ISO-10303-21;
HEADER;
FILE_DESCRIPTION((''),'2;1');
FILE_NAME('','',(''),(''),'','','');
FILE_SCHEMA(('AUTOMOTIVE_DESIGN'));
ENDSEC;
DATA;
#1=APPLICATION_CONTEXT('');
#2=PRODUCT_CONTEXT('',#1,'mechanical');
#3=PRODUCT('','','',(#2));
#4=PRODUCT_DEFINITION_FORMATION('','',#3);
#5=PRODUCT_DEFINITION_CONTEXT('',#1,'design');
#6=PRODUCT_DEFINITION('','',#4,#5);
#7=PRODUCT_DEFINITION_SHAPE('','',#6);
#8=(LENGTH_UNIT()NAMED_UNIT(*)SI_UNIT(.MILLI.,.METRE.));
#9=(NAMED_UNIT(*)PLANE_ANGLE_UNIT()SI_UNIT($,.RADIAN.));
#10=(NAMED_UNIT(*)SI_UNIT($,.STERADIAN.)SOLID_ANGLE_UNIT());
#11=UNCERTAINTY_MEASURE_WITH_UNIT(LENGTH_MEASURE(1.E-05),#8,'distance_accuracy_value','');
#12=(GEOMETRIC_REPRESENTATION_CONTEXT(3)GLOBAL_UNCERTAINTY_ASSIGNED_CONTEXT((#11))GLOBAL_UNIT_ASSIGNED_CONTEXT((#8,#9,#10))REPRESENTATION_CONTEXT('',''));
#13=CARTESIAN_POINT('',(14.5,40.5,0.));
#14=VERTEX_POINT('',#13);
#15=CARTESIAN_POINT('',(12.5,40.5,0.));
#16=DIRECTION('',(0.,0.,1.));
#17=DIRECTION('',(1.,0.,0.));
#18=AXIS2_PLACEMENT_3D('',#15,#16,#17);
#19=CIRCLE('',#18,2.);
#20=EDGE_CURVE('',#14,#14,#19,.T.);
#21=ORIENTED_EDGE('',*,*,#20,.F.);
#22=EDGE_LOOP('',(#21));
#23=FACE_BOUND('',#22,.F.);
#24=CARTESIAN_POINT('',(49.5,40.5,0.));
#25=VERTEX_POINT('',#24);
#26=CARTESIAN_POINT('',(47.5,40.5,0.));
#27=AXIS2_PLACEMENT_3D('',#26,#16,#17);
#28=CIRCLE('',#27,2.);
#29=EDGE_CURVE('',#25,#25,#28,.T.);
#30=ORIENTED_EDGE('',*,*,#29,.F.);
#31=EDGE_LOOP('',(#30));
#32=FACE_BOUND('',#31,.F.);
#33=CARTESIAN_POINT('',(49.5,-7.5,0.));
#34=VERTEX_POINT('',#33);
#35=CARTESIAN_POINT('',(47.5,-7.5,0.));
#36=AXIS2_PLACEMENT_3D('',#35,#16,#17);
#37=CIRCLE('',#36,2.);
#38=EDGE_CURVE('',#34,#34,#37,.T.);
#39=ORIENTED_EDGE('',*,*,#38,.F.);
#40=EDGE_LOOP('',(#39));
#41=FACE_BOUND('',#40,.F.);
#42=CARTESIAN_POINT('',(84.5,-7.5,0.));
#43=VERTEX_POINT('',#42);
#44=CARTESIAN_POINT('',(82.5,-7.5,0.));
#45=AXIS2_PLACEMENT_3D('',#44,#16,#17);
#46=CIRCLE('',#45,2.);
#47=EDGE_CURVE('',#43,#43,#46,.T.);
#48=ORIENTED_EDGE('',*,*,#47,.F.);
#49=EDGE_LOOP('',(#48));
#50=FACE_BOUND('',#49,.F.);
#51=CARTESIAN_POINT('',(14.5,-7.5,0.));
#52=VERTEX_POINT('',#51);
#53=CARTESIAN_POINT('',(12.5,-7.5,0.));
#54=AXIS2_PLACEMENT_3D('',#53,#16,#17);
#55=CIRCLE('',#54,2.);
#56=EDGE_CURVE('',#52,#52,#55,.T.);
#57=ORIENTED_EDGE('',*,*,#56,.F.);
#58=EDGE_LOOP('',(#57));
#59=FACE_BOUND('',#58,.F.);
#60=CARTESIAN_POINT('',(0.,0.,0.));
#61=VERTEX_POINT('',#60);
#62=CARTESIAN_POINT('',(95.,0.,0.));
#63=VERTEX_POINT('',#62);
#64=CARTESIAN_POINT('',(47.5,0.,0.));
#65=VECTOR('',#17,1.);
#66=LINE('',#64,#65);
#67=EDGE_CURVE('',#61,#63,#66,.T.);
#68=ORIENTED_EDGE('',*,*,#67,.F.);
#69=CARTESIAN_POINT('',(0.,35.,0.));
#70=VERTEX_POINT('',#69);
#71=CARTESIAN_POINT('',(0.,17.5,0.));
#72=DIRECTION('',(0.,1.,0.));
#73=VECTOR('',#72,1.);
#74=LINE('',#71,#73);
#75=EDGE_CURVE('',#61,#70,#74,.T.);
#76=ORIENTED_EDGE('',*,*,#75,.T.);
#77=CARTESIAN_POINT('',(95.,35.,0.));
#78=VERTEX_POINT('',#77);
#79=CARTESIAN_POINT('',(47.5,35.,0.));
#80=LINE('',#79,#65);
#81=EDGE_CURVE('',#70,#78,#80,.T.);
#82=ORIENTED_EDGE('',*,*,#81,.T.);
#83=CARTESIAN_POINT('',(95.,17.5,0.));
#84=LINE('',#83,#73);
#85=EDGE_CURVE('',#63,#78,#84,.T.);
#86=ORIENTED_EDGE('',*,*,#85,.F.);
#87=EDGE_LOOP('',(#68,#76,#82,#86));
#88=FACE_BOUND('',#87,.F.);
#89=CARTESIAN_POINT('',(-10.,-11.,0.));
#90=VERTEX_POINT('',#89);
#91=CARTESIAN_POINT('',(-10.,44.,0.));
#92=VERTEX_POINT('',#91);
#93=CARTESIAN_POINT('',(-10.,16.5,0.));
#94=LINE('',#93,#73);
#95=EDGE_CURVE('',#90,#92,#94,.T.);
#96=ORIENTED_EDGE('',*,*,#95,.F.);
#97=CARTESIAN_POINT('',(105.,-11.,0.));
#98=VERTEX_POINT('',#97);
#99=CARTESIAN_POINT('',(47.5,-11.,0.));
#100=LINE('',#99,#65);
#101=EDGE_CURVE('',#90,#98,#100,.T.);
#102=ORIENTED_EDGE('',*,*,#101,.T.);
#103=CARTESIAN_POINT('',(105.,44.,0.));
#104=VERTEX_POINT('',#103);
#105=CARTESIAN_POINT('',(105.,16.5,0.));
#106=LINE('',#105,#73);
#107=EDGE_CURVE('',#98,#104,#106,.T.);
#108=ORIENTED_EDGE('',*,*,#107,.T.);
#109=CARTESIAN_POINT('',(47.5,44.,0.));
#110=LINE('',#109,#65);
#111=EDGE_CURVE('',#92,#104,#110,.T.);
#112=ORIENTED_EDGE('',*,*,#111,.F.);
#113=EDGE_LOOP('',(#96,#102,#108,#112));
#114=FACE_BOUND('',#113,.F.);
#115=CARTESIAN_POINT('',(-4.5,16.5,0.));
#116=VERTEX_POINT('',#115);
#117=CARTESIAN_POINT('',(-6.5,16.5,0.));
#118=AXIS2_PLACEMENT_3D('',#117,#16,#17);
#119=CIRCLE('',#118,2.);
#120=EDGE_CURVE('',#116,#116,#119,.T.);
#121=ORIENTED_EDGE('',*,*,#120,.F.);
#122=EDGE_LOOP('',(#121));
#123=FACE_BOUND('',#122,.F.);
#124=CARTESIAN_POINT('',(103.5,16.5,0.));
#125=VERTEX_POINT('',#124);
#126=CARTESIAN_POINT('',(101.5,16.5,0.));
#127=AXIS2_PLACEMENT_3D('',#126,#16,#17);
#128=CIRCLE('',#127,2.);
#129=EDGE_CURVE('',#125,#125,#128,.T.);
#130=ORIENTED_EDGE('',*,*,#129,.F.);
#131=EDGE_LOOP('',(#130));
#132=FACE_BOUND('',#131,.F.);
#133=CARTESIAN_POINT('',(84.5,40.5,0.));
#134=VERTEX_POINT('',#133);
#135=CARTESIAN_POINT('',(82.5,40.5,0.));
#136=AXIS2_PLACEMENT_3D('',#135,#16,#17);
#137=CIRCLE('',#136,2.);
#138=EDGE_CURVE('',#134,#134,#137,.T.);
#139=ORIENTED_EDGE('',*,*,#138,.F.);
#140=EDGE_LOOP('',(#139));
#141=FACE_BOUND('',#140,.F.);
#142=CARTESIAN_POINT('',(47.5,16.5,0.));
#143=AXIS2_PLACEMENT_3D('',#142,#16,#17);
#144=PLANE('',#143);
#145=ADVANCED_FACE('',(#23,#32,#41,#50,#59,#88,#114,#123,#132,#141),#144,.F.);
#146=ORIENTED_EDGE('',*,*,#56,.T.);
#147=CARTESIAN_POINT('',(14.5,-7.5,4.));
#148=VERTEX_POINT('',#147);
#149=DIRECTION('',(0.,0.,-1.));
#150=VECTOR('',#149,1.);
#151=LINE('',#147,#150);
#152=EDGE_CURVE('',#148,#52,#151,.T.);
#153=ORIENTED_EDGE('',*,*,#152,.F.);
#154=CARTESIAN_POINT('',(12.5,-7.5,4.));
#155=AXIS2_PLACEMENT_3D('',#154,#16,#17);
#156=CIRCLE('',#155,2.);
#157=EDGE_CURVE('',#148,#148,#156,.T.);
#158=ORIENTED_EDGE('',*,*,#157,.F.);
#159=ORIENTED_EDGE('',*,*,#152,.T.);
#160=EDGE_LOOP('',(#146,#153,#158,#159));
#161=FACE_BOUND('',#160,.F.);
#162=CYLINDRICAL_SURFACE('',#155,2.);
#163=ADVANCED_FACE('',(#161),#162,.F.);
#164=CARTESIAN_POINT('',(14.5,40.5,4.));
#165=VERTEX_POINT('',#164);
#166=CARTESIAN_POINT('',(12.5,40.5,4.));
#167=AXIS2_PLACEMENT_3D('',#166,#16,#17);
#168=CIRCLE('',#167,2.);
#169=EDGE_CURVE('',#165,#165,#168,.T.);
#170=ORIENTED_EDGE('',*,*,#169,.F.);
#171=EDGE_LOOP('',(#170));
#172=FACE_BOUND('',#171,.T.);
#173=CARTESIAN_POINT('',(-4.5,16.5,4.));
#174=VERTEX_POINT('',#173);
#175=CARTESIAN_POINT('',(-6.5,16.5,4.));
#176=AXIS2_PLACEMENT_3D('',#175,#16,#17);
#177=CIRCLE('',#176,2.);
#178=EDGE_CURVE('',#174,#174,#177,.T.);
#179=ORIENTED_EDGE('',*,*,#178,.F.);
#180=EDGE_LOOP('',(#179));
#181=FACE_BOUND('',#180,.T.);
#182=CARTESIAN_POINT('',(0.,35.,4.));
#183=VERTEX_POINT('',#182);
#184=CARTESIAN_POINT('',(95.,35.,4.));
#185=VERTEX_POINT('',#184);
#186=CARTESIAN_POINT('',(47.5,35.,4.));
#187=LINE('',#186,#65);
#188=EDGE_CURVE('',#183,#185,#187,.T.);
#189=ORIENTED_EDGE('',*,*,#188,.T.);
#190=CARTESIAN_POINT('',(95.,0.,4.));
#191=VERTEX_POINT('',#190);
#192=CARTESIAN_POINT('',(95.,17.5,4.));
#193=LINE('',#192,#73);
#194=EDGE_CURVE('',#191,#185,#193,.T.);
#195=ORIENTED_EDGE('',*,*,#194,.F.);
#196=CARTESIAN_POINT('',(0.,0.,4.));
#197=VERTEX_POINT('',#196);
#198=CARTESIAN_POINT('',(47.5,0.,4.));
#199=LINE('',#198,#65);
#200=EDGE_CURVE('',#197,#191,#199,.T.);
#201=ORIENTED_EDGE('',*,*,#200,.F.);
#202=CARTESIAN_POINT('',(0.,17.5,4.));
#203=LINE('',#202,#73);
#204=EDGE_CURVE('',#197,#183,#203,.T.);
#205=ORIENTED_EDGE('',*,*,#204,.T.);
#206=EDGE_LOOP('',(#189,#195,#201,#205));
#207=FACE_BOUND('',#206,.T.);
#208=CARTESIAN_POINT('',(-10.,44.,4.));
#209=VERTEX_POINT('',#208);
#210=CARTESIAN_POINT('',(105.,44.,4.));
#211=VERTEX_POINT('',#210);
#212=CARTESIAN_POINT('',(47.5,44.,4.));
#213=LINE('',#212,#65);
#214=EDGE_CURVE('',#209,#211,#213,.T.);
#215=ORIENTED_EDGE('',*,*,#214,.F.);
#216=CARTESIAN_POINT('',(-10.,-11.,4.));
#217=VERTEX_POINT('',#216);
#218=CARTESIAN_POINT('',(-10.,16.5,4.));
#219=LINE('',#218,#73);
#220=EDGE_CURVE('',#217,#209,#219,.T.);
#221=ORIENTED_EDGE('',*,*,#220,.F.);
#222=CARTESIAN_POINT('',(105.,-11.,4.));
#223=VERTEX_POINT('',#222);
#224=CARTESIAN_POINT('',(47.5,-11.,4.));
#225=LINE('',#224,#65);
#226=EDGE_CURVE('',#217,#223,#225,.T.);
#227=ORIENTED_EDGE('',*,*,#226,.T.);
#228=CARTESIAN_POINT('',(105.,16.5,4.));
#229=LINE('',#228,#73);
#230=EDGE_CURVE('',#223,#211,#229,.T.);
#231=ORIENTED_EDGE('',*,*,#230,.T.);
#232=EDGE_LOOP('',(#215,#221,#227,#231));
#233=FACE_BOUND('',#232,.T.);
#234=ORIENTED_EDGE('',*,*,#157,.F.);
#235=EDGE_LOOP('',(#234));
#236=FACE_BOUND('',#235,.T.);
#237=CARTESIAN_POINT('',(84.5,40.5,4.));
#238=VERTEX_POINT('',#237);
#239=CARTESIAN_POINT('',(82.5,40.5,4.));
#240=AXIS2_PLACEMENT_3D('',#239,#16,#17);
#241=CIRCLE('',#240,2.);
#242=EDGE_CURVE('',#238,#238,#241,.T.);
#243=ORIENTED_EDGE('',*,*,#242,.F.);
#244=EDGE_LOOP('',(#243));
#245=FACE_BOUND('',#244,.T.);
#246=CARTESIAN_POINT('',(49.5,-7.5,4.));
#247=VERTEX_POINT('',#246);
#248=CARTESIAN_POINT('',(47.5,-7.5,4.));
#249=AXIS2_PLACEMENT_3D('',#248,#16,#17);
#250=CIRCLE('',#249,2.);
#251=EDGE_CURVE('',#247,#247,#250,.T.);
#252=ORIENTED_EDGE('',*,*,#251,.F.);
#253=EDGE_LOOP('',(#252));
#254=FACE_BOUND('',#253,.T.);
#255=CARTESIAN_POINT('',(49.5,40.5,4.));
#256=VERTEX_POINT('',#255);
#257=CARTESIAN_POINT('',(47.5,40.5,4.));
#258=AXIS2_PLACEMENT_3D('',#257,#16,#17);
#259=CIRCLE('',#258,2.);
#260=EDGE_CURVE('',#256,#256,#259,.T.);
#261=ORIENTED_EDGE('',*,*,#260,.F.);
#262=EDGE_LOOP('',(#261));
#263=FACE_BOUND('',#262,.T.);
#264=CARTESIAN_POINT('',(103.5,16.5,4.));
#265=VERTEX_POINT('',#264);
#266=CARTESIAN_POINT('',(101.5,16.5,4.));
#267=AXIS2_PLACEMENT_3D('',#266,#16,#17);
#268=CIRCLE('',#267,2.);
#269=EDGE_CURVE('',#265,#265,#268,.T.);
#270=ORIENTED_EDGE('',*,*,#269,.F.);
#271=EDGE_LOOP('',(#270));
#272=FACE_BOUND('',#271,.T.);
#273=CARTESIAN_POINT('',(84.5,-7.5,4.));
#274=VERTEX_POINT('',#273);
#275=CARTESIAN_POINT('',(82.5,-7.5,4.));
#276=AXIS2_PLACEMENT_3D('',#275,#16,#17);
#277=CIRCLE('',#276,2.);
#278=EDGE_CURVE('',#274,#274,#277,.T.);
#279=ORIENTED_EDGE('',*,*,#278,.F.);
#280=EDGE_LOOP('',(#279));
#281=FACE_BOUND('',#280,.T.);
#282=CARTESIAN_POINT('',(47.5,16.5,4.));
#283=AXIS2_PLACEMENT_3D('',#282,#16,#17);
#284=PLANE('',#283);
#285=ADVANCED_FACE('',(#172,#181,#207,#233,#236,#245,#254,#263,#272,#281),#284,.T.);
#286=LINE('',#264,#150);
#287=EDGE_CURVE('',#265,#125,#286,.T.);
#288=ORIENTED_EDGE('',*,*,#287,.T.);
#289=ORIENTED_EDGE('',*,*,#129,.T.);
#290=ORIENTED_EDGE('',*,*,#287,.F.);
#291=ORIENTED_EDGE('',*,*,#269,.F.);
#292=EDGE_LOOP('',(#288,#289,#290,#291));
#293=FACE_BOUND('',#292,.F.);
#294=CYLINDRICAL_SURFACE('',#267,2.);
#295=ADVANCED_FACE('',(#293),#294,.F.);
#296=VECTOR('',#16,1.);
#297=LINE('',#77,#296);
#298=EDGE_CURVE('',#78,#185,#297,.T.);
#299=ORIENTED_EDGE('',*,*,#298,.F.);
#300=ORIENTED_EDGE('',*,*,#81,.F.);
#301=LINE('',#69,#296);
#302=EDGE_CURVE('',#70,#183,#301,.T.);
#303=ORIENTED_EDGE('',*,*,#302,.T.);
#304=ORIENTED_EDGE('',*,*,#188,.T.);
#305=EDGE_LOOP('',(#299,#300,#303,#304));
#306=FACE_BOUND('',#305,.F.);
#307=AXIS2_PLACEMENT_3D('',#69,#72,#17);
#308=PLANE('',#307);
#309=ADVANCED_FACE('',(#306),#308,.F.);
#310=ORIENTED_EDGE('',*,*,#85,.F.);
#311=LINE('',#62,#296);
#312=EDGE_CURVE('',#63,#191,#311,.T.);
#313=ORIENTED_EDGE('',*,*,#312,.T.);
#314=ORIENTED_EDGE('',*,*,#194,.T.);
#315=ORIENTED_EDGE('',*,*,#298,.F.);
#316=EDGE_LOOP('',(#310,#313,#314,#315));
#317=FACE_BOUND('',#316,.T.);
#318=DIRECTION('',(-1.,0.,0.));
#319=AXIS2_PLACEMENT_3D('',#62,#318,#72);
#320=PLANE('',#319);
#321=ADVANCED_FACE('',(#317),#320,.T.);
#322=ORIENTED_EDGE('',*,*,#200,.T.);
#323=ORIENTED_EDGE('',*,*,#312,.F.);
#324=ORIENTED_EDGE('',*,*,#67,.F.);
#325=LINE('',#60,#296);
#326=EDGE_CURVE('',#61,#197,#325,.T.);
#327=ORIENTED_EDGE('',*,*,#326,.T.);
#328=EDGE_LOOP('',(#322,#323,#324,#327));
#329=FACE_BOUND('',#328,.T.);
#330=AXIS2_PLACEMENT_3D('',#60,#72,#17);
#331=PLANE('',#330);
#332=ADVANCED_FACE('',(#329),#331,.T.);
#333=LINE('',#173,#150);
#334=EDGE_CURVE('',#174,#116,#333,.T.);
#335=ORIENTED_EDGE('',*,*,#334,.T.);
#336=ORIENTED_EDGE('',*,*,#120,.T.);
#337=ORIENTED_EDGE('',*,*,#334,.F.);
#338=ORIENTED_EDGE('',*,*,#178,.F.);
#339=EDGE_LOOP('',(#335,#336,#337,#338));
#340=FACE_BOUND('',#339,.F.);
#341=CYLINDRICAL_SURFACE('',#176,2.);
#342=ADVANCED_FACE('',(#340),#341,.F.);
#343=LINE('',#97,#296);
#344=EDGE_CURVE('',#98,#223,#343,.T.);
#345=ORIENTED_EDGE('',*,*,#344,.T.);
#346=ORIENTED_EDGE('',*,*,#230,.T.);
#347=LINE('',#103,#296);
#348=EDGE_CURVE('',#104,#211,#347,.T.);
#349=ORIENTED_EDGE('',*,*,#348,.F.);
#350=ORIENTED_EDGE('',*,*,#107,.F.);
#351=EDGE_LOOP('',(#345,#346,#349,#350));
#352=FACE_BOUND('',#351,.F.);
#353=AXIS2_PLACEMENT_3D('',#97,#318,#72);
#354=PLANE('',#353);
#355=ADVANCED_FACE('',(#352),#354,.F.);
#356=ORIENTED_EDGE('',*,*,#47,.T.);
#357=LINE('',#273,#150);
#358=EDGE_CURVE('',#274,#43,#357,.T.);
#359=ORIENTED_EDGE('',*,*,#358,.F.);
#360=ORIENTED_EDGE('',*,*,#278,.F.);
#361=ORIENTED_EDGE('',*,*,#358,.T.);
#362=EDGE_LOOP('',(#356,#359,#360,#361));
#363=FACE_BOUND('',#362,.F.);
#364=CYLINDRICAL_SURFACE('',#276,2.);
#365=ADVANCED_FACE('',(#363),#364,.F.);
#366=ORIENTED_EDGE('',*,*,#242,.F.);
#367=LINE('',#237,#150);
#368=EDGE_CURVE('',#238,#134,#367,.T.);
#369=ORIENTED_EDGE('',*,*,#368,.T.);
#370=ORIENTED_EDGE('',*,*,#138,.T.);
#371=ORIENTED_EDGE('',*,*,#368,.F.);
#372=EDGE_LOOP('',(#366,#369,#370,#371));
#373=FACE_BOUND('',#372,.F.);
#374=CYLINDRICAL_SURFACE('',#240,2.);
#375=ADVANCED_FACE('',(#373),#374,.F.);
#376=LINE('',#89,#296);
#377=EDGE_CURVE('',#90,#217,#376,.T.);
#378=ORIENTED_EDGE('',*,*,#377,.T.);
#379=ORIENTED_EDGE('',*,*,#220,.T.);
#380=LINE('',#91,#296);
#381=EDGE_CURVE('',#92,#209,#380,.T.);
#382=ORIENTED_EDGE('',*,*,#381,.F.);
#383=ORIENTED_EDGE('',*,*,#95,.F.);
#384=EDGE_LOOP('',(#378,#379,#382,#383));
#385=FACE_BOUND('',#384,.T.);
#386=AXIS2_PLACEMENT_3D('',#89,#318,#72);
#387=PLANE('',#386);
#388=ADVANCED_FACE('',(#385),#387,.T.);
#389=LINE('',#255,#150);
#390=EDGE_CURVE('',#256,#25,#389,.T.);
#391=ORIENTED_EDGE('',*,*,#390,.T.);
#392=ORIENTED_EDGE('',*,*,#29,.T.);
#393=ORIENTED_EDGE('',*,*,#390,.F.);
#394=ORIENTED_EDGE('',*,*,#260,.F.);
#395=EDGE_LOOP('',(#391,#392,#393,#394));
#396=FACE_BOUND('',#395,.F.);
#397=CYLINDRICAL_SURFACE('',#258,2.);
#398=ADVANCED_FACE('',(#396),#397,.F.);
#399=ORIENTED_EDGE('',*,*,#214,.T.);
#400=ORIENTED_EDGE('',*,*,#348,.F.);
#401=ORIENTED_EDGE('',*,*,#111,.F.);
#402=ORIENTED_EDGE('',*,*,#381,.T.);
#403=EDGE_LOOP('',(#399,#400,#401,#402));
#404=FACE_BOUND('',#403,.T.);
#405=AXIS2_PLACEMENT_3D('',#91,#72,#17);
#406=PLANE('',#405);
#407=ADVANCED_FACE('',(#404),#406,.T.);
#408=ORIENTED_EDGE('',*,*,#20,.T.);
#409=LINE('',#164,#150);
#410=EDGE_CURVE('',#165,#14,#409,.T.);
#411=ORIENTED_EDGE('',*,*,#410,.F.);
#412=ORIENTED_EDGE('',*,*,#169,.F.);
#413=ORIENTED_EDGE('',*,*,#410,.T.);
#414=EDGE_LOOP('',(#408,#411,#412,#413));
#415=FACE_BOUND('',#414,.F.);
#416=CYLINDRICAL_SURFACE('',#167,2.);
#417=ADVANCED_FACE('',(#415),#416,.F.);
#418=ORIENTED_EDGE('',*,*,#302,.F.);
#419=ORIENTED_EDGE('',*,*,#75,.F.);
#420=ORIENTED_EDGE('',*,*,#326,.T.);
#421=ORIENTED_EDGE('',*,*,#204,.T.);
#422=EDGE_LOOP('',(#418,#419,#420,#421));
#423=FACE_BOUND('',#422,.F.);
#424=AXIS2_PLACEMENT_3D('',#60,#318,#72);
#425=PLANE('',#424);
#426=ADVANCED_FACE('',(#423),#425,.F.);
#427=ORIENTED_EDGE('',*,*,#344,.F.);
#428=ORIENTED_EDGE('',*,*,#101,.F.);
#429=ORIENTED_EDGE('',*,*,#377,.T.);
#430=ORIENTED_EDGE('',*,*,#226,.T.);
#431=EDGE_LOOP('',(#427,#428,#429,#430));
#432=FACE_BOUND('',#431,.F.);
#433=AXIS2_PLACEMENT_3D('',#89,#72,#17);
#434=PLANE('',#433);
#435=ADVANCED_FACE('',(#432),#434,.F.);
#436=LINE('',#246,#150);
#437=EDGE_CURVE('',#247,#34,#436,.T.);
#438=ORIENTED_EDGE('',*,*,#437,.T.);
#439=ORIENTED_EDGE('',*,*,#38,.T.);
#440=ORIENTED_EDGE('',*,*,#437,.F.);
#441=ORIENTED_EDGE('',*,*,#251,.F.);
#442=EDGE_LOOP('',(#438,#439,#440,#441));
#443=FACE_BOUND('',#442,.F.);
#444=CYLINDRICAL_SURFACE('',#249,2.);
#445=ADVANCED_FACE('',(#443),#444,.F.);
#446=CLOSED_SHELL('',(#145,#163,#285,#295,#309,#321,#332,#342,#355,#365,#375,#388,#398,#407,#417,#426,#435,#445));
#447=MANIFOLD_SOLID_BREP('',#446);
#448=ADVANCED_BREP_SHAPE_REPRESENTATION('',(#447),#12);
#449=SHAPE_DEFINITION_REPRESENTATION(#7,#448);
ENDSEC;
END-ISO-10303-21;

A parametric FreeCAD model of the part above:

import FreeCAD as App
import Part
import Sketcher


def add_polygon(sketch, points):
    """Adds a closed chain of lines whose ends are joined by coincident constraints."""
    first, n = sketch.GeometryCount, len(points)
    for a, b in zip(points, points[1:] + points[:1]):
        sketch.addGeometry(Part.LineSegment(App.Vector(*a, 0), App.Vector(*b, 0)), False)
    for i in range(n):
        sketch.addConstraint(Sketcher.Constraint("Coincident", first + i, 2, first + (i + 1) % n, 1))

doc = App.newDocument("Part")
body = doc.addObject("PartDesign::Body", "Body")

sketch1 = body.newObject("Sketcher::SketchObject", "Sketch")
sketch1.AttachmentSupport = (doc.getObject("XY_Plane"), [""])
sketch1.MapMode = "FlatFace"
add_polygon(sketch1, [(-10, 44), (-10, -11), (105, -11), (105, 44)])
add_polygon(sketch1, [(95, 0), (0, 0), (0, 35), (95, 35)])
sketch1.addConstraint([
    Sketcher.Constraint("Vertical", 0),
    Sketcher.Constraint("Horizontal", 1),
    Sketcher.Constraint("Vertical", 2),
    Sketcher.Constraint("Horizontal", 3),
    Sketcher.Constraint("Horizontal", 4),
    Sketcher.Constraint("Vertical", 5),
    Sketcher.Constraint("Horizontal", 6),
    Sketcher.Constraint("Vertical", 7),
    Sketcher.Constraint("Coincident", 4, 2, -1, 1),
    Sketcher.Constraint("DistanceX", 1, 1, 1, 2, 115.0),
    Sketcher.Constraint("DistanceX", 4, 2, 4, 1, 95.0),
    Sketcher.Constraint("DistanceY", 0, 2, 0, 1, 55.0),
    Sketcher.Constraint("DistanceY", 5, 1, 5, 2, 35.0),
    Sketcher.Constraint("DistanceX", 0, 2, -1, 1, 10.0),
    Sketcher.Constraint("DistanceY", 0, 2, -1, 1, 11.0),
])
pad1 = body.newObject("PartDesign::Pad", "Pad")
pad1.Profile = sketch1
pad1.Length = 4

sketch2 = body.newObject("Sketcher::SketchObject", "Sketch001")
sketch2.AttachmentSupport = (doc.getObject("XY_Plane"), [""])
sketch2.MapMode = "FlatFace"
sketch2.AttachmentOffset = App.Placement(App.Vector(0, 0, 4), App.Rotation())
sketch2.addGeometry([
    Part.Circle(App.Vector(-6.5, 16.5, 0), App.Vector(0, 0, 1), 2),
    Part.Circle(App.Vector(12.5, 40.5, 0), App.Vector(0, 0, 1), 2),
    Part.Circle(App.Vector(47.5, 40.5, 0), App.Vector(0, 0, 1), 2),
    Part.Circle(App.Vector(82.5, 40.5, 0), App.Vector(0, 0, 1), 2),
    Part.Circle(App.Vector(101.5, 16.5, 0), App.Vector(0, 0, 1), 2),
    Part.Circle(App.Vector(82.5, -7.5, 0), App.Vector(0, 0, 1), 2),
    Part.Circle(App.Vector(47.5, -7.5, 0), App.Vector(0, 0, 1), 2),
    Part.Circle(App.Vector(12.5, -7.5, 0), App.Vector(0, 0, 1), 2),
], False)
sketch2.addConstraint([
    Sketcher.Constraint("Equal", 0, 1),
    Sketcher.Constraint("Equal", 1, 2),
    Sketcher.Constraint("Equal", 2, 3),
    Sketcher.Constraint("Equal", 3, 4),
    Sketcher.Constraint("Equal", 4, 5),
    Sketcher.Constraint("Equal", 5, 6),
    Sketcher.Constraint("Equal", 6, 7),
    Sketcher.Constraint("Horizontal", 1, 3, 2, 3),
    Sketcher.Constraint("Horizontal", 2, 3, 3, 3),
    Sketcher.Constraint("Horizontal", 0, 3, 4, 3),
    Sketcher.Constraint("Horizontal", 5, 3, 6, 3),
    Sketcher.Constraint("Horizontal", 6, 3, 7, 3),
    Sketcher.Constraint("Vertical", 3, 3, 5, 3),
    Sketcher.Constraint("Vertical", 2, 3, 6, 3),
    Sketcher.Constraint("Vertical", 1, 3, 7, 3),
    Sketcher.Constraint("Diameter", 0, 4.0),
    Sketcher.Constraint("DistanceX", 0, 3, 1, 3, 19.0),
    Sketcher.Constraint("DistanceY", 0, 3, 1, 3, 24.0),
    Sketcher.Constraint("DistanceX", 1, 3, 2, 3, 35.0),
    Sketcher.Constraint("DistanceX", 2, 3, 3, 3, 35.0),
    Sketcher.Constraint("DistanceX", 3, 3, 4, 3, 19.0),
    Sketcher.Constraint("DistanceY", 5, 3, 4, 3, 24.0),
    Sketcher.Constraint("DistanceX", 0, 3, -1, 1, 6.5),
    Sketcher.Constraint("DistanceY", -1, 1, 0, 3, 16.5),
])
pocket1 = body.newObject("PartDesign::Pocket", "Pocket")
pocket1.Profile = sketch2
pocket1.Type = "ThroughAll"

doc.recompute()
